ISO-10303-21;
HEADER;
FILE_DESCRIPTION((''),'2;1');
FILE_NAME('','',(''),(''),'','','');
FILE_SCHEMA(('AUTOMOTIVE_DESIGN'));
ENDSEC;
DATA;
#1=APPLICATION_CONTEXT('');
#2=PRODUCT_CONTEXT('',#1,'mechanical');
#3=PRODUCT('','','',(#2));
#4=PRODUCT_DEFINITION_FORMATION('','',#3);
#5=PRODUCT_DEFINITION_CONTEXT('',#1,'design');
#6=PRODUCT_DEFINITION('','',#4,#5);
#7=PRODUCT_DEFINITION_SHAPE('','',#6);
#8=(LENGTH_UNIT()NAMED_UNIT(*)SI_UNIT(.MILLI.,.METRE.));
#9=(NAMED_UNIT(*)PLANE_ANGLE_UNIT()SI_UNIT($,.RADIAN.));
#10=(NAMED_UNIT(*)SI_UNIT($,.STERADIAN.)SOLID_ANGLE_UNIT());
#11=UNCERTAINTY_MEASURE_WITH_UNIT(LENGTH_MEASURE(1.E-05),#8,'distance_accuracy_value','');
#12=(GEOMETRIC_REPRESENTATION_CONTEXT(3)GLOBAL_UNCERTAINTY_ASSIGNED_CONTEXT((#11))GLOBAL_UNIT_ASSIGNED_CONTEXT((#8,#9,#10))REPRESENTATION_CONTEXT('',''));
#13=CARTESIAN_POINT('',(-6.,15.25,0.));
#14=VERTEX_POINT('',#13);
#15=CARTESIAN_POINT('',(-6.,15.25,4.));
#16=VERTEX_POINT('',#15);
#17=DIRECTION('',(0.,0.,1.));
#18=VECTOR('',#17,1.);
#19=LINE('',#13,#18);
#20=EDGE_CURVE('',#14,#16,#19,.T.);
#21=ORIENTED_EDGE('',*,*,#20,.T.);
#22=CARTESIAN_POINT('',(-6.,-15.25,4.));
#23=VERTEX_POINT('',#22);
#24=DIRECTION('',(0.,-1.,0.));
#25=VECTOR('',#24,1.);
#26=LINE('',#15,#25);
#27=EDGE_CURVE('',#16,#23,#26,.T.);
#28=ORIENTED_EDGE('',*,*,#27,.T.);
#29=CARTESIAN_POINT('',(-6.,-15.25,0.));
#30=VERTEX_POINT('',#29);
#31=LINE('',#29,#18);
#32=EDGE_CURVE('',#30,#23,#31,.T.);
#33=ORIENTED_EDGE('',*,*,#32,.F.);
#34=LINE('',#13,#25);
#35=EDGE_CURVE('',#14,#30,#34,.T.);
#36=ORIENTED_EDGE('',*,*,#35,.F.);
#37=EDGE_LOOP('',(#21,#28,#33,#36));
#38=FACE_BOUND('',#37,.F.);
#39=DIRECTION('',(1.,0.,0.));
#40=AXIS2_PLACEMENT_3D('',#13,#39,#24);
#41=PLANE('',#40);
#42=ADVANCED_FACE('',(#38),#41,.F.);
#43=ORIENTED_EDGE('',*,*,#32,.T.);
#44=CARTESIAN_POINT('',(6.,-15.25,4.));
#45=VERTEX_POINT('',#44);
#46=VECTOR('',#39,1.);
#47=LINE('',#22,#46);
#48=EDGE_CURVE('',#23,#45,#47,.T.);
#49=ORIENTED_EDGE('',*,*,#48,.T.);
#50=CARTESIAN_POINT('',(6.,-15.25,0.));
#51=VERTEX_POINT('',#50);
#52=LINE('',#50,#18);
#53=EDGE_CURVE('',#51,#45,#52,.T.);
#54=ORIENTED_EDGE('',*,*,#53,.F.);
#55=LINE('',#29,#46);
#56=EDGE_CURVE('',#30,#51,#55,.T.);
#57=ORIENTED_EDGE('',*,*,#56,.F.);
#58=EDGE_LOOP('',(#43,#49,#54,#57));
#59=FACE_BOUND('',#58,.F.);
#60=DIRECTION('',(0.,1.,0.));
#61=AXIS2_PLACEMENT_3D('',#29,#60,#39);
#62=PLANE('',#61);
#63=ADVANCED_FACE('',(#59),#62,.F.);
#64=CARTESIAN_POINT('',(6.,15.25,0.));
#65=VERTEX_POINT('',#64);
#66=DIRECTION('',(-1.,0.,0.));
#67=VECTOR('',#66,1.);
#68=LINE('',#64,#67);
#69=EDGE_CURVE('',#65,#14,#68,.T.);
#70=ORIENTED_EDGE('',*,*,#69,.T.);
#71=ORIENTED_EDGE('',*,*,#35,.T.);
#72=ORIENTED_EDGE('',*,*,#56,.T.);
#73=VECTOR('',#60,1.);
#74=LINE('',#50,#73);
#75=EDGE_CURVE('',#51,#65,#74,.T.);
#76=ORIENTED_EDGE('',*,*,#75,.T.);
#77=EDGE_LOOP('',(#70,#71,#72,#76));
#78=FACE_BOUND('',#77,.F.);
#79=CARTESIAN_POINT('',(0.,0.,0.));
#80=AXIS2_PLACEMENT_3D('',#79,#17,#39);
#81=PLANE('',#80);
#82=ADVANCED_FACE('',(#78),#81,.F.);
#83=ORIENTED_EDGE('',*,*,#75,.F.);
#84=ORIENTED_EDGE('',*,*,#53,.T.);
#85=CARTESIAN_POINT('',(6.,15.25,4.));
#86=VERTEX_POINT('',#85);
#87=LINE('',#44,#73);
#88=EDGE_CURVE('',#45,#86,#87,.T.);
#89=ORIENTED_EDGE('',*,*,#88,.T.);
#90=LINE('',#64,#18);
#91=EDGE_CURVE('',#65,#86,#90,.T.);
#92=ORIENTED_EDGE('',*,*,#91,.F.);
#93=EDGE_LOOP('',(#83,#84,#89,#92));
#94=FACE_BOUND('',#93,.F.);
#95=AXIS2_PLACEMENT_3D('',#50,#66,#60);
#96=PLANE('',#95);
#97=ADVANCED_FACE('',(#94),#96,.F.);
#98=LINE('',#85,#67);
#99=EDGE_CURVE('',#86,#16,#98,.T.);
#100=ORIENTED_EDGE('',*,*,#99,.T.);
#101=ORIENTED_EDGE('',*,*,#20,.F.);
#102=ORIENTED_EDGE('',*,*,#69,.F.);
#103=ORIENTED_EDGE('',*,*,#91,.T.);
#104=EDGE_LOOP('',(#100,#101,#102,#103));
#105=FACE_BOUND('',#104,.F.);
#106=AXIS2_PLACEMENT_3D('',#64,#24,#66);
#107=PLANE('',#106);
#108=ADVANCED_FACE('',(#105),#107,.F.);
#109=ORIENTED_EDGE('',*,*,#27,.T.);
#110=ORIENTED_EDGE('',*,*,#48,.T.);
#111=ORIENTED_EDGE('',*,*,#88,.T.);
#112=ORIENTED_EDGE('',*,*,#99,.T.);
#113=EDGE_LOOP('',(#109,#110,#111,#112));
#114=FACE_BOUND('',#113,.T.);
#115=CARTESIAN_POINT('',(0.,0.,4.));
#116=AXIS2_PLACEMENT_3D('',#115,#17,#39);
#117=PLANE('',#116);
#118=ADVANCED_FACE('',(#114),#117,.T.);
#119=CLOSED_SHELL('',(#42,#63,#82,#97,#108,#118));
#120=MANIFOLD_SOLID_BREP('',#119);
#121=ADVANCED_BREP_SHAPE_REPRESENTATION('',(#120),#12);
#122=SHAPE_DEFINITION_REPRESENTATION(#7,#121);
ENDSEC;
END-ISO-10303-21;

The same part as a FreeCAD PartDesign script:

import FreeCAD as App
import Part
import Sketcher

V = App.Vector

doc = App.newDocument("Part")
body = doc.addObject("PartDesign::Body", "Body")

# Sketch on XY plane
sketch1 = body.newObject("Sketcher::SketchObject", "Sketch")
sketch1.AttachmentSupport = (doc.getObject("XY_Plane"), [""])
sketch1.MapMode = "FlatFace"
sketch1.addGeometry(Part.LineSegment(V(-6, 15, 0), V(-6, -15, 0)), False)
sketch1.addGeometry(Part.LineSegment(V(-6, -15, 0), V(6, -15, 0)), False)
sketch1.addGeometry(Part.LineSegment(V(6, -15, 0), V(6, 15, 0)), False)
sketch1.addGeometry(Part.LineSegment(V(6, 15, 0), V(-6, 15, 0)), False)
sketch1.addConstraint(Sketcher.Constraint("Coincident", 0, 2, 1, 1))
sketch1.addConstraint(Sketcher.Constraint("Coincident", 1, 2, 2, 1))
sketch1.addConstraint(Sketcher.Constraint("Coincident", 2, 2, 3, 1))
sketch1.addConstraint(Sketcher.Constraint("Coincident", 3, 2, 0, 1))
sketch1.addConstraint(Sketcher.Constraint("Vertical", 0))
sketch1.addConstraint(Sketcher.Constraint("Horizontal", 1))
sketch1.addConstraint(Sketcher.Constraint("Vertical", 2))
sketch1.addConstraint(Sketcher.Constraint("Horizontal", 3))
sketch1.addConstraint(Sketcher.Constraint("Symmetric", 0, 2, 2, 2, -1, 1))
sketch1.addConstraint(Sketcher.Constraint("DistanceX", 0, 2, -1, 1, 6.0))
sketch1.addConstraint(Sketcher.Constraint("DistanceY", 0, 2, 0, 1, 30.5))
pad1 = body.newObject("PartDesign::Pad", "Pad")
pad1.Profile = sketch1
pad1.Length = 4

doc.recompute()
